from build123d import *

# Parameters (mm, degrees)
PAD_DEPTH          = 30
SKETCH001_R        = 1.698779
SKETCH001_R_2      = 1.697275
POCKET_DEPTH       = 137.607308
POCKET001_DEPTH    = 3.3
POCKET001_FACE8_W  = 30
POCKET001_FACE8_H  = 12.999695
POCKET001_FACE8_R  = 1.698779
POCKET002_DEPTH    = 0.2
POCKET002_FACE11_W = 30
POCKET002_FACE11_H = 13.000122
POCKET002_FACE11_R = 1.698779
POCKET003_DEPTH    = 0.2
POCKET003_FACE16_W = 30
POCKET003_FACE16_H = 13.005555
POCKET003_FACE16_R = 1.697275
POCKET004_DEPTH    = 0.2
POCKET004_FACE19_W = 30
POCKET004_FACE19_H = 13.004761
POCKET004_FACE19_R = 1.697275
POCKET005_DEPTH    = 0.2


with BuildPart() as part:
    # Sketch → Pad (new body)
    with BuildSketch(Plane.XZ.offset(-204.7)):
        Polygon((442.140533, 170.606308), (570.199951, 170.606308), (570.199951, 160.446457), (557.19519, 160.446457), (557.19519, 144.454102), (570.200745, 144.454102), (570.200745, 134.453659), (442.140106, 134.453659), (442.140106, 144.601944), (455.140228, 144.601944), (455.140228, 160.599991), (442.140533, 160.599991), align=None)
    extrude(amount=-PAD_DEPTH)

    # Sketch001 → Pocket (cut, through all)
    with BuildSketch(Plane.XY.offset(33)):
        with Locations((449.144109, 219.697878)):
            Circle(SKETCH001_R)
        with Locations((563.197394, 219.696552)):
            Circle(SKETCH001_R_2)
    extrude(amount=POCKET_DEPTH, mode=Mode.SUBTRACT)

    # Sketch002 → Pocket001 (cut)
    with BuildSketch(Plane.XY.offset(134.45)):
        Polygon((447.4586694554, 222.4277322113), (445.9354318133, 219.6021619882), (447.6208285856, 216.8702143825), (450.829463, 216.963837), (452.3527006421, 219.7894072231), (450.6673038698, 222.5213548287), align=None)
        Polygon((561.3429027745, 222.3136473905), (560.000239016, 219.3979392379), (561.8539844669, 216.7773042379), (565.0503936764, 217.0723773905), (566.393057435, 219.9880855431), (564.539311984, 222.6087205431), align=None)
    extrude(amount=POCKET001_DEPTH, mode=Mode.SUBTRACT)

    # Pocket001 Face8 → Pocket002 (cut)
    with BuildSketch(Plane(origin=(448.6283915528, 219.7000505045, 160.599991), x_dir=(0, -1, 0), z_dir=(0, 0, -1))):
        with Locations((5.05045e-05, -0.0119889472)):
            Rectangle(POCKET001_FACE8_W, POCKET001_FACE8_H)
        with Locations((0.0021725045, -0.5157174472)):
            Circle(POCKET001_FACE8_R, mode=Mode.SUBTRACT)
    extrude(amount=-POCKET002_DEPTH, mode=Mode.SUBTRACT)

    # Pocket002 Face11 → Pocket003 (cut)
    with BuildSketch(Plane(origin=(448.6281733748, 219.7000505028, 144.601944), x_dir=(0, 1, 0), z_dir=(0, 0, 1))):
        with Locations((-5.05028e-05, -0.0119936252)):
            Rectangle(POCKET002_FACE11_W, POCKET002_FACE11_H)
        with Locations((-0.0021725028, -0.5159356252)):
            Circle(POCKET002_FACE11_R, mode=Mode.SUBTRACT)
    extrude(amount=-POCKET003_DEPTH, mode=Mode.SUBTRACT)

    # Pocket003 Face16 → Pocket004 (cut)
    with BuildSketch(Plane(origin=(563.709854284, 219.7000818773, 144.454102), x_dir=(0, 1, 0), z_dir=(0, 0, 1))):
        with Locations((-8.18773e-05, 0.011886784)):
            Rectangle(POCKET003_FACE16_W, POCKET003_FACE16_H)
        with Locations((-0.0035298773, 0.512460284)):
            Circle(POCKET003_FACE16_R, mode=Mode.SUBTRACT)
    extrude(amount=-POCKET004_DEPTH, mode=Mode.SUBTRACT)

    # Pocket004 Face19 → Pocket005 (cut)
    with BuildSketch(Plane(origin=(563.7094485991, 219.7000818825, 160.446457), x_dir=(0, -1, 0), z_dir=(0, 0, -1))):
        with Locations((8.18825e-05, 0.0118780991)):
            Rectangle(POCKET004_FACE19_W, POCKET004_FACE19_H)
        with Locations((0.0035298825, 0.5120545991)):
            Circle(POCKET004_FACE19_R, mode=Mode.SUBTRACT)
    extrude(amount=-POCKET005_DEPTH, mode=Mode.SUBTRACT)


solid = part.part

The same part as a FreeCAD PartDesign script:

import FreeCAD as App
import Part
import Sketcher


def add_polygon(sketch, points):
    """Adds a closed chain of lines whose ends are joined by coincident constraints."""
    first, n = sketch.GeometryCount, len(points)
    for a, b in zip(points, points[1:] + points[:1]):
        sketch.addGeometry(Part.LineSegment(App.Vector(*a, 0), App.Vector(*b, 0)), False)
    for i in range(n):
        sketch.addConstraint(Sketcher.Constraint("Coincident", first + i, 2, first + (i + 1) % n, 1))

doc = App.newDocument("Part")
body = doc.addObject("PartDesign::Body", "Body")

sketch1 = body.newObject("Sketcher::SketchObject", "Sketch")
sketch1.AttachmentSupport = (doc.getObject("XZ_Plane"), [""])
sketch1.MapMode = "FlatFace"
sketch1.AttachmentOffset = App.Placement(App.Vector(0, 0, -204.7), App.Rotation())
add_polygon(sketch1, [(570, 171), (442, 171), (442, 161), (455, 161), (455, 145), (442, 145), (442, 134), (570, 134), (570, 144), (557, 144), (557, 160), (570, 160)])
sketch1.addConstraint([
    Sketcher.Constraint("Horizontal", 0),
    Sketcher.Constraint("Vertical", 1),
    Sketcher.Constraint("Horizontal", 2),
    Sketcher.Constraint("Vertical", 3),
    Sketcher.Constraint("Horizontal", 4),
    Sketcher.Constraint("Vertical", 5),
    Sketcher.Constraint("Horizontal", 6),
    Sketcher.Constraint("Vertical", 7),
    Sketcher.Constraint("Horizontal", 8),
    Sketcher.Constraint("Vertical", 9),
    Sketcher.Constraint("Horizontal", 10),
    Sketcher.Constraint("Vertical", 11),
    Sketcher.Constraint("DistanceX", 0, 2, 0, 1, 128.059418),
    Sketcher.Constraint("DistanceX", 4, 2, 4, 1, 13.000122),
    Sketcher.Constraint("DistanceX", 6, 1, 6, 2, 128.060639),
    Sketcher.Constraint("DistanceX", 10, 1, 10, 2, 13.004761),
    Sketcher.Constraint("DistanceY", 11, 1, 11, 2, 10.159851),
    Sketcher.Constraint("DistanceY", -1, 1, 7, 2, 144.454102),
    Sketcher.Constraint("DistanceY", 6, 2, 9, 2, 25.992798),
    Sketcher.Constraint("DistanceX", 2, 1, 2, 2, 12.999695),
    Sketcher.Constraint("DistanceY", 1, 2, 1, 1, 10.006317),
    Sketcher.Constraint("DistanceY", 3, 2, 3, 1, 15.998047),
    Sketcher.Constraint("DistanceY", 7, 1, 7, 2, 10.000443),
    Sketcher.Constraint("DistanceX", -1, 1, 2, 2, 455.140228),
])
pad1 = body.newObject("PartDesign::Pad", "Pad")
pad1.Profile = sketch1
pad1.Length = 30
pad1.Reversed = True

sketch2 = body.newObject("Sketcher::SketchObject", "Sketch001")
sketch2.AttachmentSupport = (doc.getObject("XY_Plane"), [""])
sketch2.MapMode = "FlatFace"
sketch2.AttachmentOffset = App.Placement(App.Vector(0, 0, 33), App.Rotation())
sketch2.addGeometry([
    Part.Circle(App.Vector(449.1, 219.7, 0), App.Vector(0, 0, 1), 1.7),
    Part.Circle(App.Vector(563.2, 219.7, 0), App.Vector(0, 0, 1), 1.7),
], False)
sketch2.addConstraint([
    Sketcher.Constraint("Diameter", 0, 3.397558),
    Sketcher.Constraint("Diameter", 1, 3.39455),
    Sketcher.Constraint("DistanceX", -1, 1, 0, 3, 449.144109),
    Sketcher.Constraint("DistanceY", -1, 1, 0, 3, 219.697878),
    Sketcher.Constraint("DistanceY", -1, 1, 1, 3, 219.696552),
    Sketcher.Constraint("DistanceX", -1, 1, 1, 3, 563.197394),
])
pocket1 = body.newObject("PartDesign::Pocket", "Pocket")
pocket1.Profile = sketch2
pocket1.Type = "ThroughAll"
pocket1.Reversed = True

sketch3 = body.newObject("Sketcher::SketchObject", "Sketch002")
sketch3.AttachmentSupport = (doc.getObject("XY_Plane"), [""])
sketch3.MapMode = "FlatFace"
sketch3.AttachmentOffset = App.Placement(App.Vector(0, 0, 134.45), App.Rotation())
add_polygon(sketch3, [(447.5, 222.4), (445.9, 219.6), (447.6, 216.9), (450.8, 217), (452.4, 219.8), (450.7, 222.5)])
add_polygon(sketch3, [(561.3, 222.3), (560, 219.4), (561.9, 216.8), (565.1, 217.1), (566.4, 220), (564.5, 222.6)])
sketch3.addConstraint([
    Sketcher.Constraint("Parallel", 0, 3),
    Sketcher.Constraint("Parallel", 1, 4),
    Sketcher.Constraint("Parallel", 2, 5),
    Sketcher.Constraint("Parallel", 6, 9),
    Sketcher.Constraint("Parallel", 7, 10),
    Sketcher.Constraint("Parallel", 8, 11),
    Sketcher.Constraint("Equal", 0, 1),
    Sketcher.Constraint("Equal", 1, 2),
    Sketcher.Constraint("Equal", 2, 3),
    Sketcher.Constraint("Equal", 5, 6),
    Sketcher.Constraint("Equal", 6, 7),
    Sketcher.Constraint("Equal", 7, 8),
    Sketcher.Constraint("Equal", 8, 9),
    Sketcher.Constraint("Distance", 0, 3.21),
    Sketcher.Constraint("DistanceX", -1, 1, 3, 2, 452.352701),
    Sketcher.Constraint("DistanceX", -1, 1, 0, 2, 445.935432),
    Sketcher.Constraint("DistanceY", -1, 1, 0, 2, 219.602162),
    Sketcher.Constraint("DistanceX", -1, 1, 1, 2, 447.620829),
    Sketcher.Constraint("DistanceX", -1, 1, 5, 2, 447.458669),
    Sketcher.Constraint("DistanceX", -1, 1, 6, 2, 560.000239),
    Sketcher.Constraint("DistanceY", -1, 1, 6, 2, 219.397939),
    Sketcher.Constraint("DistanceX", -1, 1, 10, 2, 564.539312),
    Sketcher.Constraint("DistanceY", -1, 1, 10, 2, 222.608721),
    Sketcher.Constraint("DistanceX", 2, 2, 7, 2, 111.024521),
])
pocket2 = body.newObject("PartDesign::Pocket", "Pocket001")
pocket2.Profile = sketch3
pocket2.Length = 3.3
pocket2.Reversed = True

sketch4 = body.newObject("Sketcher::SketchObject", "Sketch003")
sketch4.AttachmentSupport = (doc.getObject("XY_Plane"), [""])
sketch4.MapMode = "FlatFace"
sketch4.AttachmentOffset = App.Placement(App.Vector(0, 0, 160.599991), App.Rotation())
add_polygon(sketch4, [(442.1, 234.7), (455.1, 234.7), (455.1, 204.7), (442.1, 204.7)])
sketch4.addGeometry(Part.Circle(App.Vector(449.1, 219.7, 0), App.Vector(0, 0, 1), 1.7), False)
sketch4.addConstraint([
    Sketcher.Constraint("Horizontal", 0),
    Sketcher.Constraint("Vertical", 1),
    Sketcher.Constraint("Horizontal", 2),
    Sketcher.Constraint("Vertical", 3),
    Sketcher.Constraint("DistanceY", 1, 2, 1, 1, 30.0),
    Sketcher.Constraint("DistanceY", -1, 1, 0, 2, 234.7),
    Sketcher.Constraint("Diameter", 4, 3.397558),
    Sketcher.Constraint("DistanceX", 0, 1, 0, 2, 12.999695),
    Sketcher.Constraint("DistanceX", -1, 1, 4, 3, 449.144109),
    Sketcher.Constraint("DistanceY", -1, 1, 4, 3, 219.697878),
    Sketcher.Constraint("DistanceX", -1, 1, 0, 2, 455.140228),
])
pocket3 = body.newObject("PartDesign::Pocket", "Pocket002")
pocket3.Profile = sketch4
pocket3.Length = 0.2
pocket3.Reversed = True

sketch5 = body.newObject("Sketcher::SketchObject", "Sketch004")
sketch5.AttachmentSupport = (doc.getObject("XY_Plane"), [""])
sketch5.MapMode = "FlatFace"
sketch5.AttachmentOffset = App.Placement(App.Vector(0, 0, 144.601944), App.Rotation())
add_polygon(sketch5, [(442.1, 204.7), (455.1, 204.7), (455.1, 234.7), (442.1, 234.7)])
sketch5.addGeometry(Part.Circle(App.Vector(449.1, 219.7, 0), App.Vector(0, 0, 1), 1.7), False)
sketch5.addConstraint([
    Sketcher.Constraint("Horizontal", 0),
    Sketcher.Constraint("Vertical", 1),
    Sketcher.Constraint("Horizontal", 2),
    Sketcher.Constraint("Vertical", 3),
    Sketcher.Constraint("DistanceY", 1, 1, 1, 2, 30.0),
    Sketcher.Constraint("DistanceY", -1, 1, 0, 2, 204.7),
    Sketcher.Constraint("Diameter", 4, 3.397558),
    Sketcher.Constraint("DistanceX", 0, 1, 0, 2, 13.000122),
    Sketcher.Constraint("DistanceX", -1, 1, 4, 3, 449.144109),
    Sketcher.Constraint("DistanceY", -1, 1, 4, 3, 219.697878),
    Sketcher.Constraint("DistanceX", -1, 1, 0, 2, 455.140228),
])
pocket4 = body.newObject("PartDesign::Pocket", "Pocket003")
pocket4.Profile = sketch5
pocket4.Length = 0.2

sketch6 = body.newObject("Sketcher::SketchObject", "Sketch005")
sketch6.AttachmentSupport = (doc.getObject("XY_Plane"), [""])
sketch6.MapMode = "FlatFace"
sketch6.AttachmentOffset = App.Placement(App.Vector(0, 0, 144.454102), App.Rotation())
add_polygon(sketch6, [(557.2, 204.7), (570.2, 204.7), (570.2, 234.7), (557.2, 234.7)])
sketch6.addGeometry(Part.Circle(App.Vector(563.2, 219.7, 0), App.Vector(0, 0, 1), 1.7), False)
sketch6.addConstraint([
    Sketcher.Constraint("Horizontal", 0),
    Sketcher.Constraint("Vertical", 1),
    Sketcher.Constraint("Horizontal", 2),
    Sketcher.Constraint("Vertical", 3),
    Sketcher.Constraint("DistanceY", 1, 1, 1, 2, 30.0),
    Sketcher.Constraint("DistanceY", -1, 1, 0, 2, 204.7),
    Sketcher.Constraint("Diameter", 4, 3.39455),
    Sketcher.Constraint("DistanceX", 0, 1, 0, 2, 13.005555),
    Sketcher.Constraint("DistanceY", -1, 1, 4, 3, 219.696552),
    Sketcher.Constraint("DistanceX", -1, 1, 2, 2, 557.19519),
    Sketcher.Constraint("DistanceX", 4, 3, 0, 2, 7.003351),
])
pocket5 = body.newObject("PartDesign::Pocket", "Pocket004")
pocket5.Profile = sketch6
pocket5.Length = 0.2

sketch7 = body.newObject("Sketcher::SketchObject", "Sketch006")
sketch7.AttachmentSupport = (doc.getObject("XY_Plane"), [""])
sketch7.MapMode = "FlatFace"
sketch7.AttachmentOffset = App.Placement(App.Vector(0, 0, 160.446457), App.Rotation())
add_polygon(sketch7, [(557.2, 234.7), (570.2, 234.7), (570.2, 204.7), (557.2, 204.7)])
sketch7.addGeometry(Part.Circle(App.Vector(563.2, 219.7, 0), App.Vector(0, 0, 1), 1.7), False)
sketch7.addConstraint([
    Sketcher.Constraint("Horizontal", 0),
    Sketcher.Constraint("Vertical", 1),
    Sketcher.Constraint("Horizontal", 2),
    Sketcher.Constraint("Vertical", 3),
    Sketcher.Constraint("DistanceY", 1, 2, 1, 1, 30.0),
    Sketcher.Constraint("DistanceY", -1, 1, 0, 2, 234.7),
    Sketcher.Constraint("Diameter", 4, 3.39455),
    Sketcher.Constraint("DistanceX", 0, 1, 0, 2, 13.004761),
    Sketcher.Constraint("DistanceX", -1, 1, 0, 2, 570.199951),
    Sketcher.Constraint("DistanceY", 4, 3, 0, 2, 15.003448),
    Sketcher.Constraint("DistanceX", -1, 1, 4, 3, 563.197394),
])
pocket6 = body.newObject("PartDesign::Pocket", "Pocket005")
pocket6.Profile = sketch7
pocket6.Length = 0.2
pocket6.Reversed = True

doc.recompute()
